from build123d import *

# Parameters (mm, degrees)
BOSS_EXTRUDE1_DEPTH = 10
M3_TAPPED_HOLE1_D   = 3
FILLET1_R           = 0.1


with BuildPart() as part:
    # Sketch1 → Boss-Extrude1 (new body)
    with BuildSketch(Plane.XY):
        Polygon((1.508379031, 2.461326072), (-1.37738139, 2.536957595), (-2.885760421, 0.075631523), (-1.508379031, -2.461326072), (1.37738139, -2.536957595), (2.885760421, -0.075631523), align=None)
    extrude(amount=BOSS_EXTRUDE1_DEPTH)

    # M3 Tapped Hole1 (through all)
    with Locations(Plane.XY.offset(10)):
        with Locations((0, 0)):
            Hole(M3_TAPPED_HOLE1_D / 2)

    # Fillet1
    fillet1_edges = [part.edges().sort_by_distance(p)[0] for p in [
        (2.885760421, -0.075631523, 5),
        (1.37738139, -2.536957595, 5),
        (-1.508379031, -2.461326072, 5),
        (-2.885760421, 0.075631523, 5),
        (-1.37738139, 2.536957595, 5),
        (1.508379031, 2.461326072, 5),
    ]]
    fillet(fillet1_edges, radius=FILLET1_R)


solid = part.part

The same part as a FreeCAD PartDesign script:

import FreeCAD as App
import Part
import Sketcher


def edges_at(feature, points):
    """Names of the edges that pass closest to the given points."""
    edges = feature.Shape.Edges
    near = lambda p: min(range(len(edges)), key=lambda i: edges[i].distToShape(Part.Vertex(*p))[0])
    return sorted({f"Edge{near(p) + 1}" for p in points})


def add_polygon(sketch, points):
    """Adds a closed chain of lines whose ends are joined by coincident constraints."""
    first, n = sketch.GeometryCount, len(points)
    for a, b in zip(points, points[1:] + points[:1]):
        sketch.addGeometry(Part.LineSegment(App.Vector(*a, 0), App.Vector(*b, 0)), False)
    for i in range(n):
        sketch.addConstraint(Sketcher.Constraint("Coincident", first + i, 2, first + (i + 1) % n, 1))

doc = App.newDocument("Part")
body = doc.addObject("PartDesign::Body", "Body")

sketch1 = body.newObject("Sketcher::SketchObject", "Sketch")
sketch1.AttachmentSupport = (doc.getObject("XY_Plane"), [""])
sketch1.MapMode = "FlatFace"
add_polygon(sketch1, [(1.508379, 2.461326), (-1.377381, 2.536958), (-2.88576, 0.075632), (-1.508379, -2.461326), (1.377381, -2.536958), (2.88576, -0.075632)])
sketch1.addConstraint([
    Sketcher.Constraint("Symmetric", 0, 2, 3, 2, -1, 1),
    Sketcher.Constraint("Symmetric", 1, 2, 4, 2, -1, 1),
    Sketcher.Constraint("Symmetric", 2, 2, 5, 2, -1, 1),
    Sketcher.Constraint("Equal", 0, 1),
    Sketcher.Constraint("Equal", 1, 2),
    Sketcher.Constraint("Distance", 0, 2.886751),
    Sketcher.Constraint("DistanceX", 0, 2, -1, 1, 1.377381),
    Sketcher.Constraint("DistanceX", 1, 2, -1, 1, 2.88576),
    Sketcher.Constraint("DistanceY", -1, 1, 1, 2, 0.075632),
])
pad1 = body.newObject("PartDesign::Pad", "Pad")
pad1.Profile = sketch1
pad1.Length = 10

sketch2 = body.newObject("Sketcher::SketchObject", "Sketch001")
sketch2.AttachmentSupport = (doc.getObject("XY_Plane"), [""])
sketch2.MapMode = "FlatFace"
sketch2.AttachmentOffset = App.Placement(App.Vector(0, 0, 10), App.Rotation())
sketch2.addGeometry(Part.Circle(App.Vector(0, 0, 0), App.Vector(0, 0, 1), 1.5), False)
sketch2.addConstraint([
    Sketcher.Constraint("Coincident", 0, 3, -1, 1),
    Sketcher.Constraint("Diameter", 0, 3.0),
])
doc.recompute()
hole = body.newObject("PartDesign::Hole", "Hole")
hole.Profile = sketch2
hole.ThreadType = "None"
hole.Diameter = 3
hole.DepthType = "ThroughAll"
doc.recompute()

fillet = body.newObject("PartDesign::Fillet", "Fillet")
fillet.Base = (hole, edges_at(hole, [
    (2.886, -0.076, 5),
    (1.377, -2.537, 5),
    (-1.508, -2.461, 5),
    (-2.886, 0.076, 5),
    (-1.377, 2.537, 5),
    (1.508, 2.461, 5),
]))
fillet.Radius = 0.1

doc.recompute()
